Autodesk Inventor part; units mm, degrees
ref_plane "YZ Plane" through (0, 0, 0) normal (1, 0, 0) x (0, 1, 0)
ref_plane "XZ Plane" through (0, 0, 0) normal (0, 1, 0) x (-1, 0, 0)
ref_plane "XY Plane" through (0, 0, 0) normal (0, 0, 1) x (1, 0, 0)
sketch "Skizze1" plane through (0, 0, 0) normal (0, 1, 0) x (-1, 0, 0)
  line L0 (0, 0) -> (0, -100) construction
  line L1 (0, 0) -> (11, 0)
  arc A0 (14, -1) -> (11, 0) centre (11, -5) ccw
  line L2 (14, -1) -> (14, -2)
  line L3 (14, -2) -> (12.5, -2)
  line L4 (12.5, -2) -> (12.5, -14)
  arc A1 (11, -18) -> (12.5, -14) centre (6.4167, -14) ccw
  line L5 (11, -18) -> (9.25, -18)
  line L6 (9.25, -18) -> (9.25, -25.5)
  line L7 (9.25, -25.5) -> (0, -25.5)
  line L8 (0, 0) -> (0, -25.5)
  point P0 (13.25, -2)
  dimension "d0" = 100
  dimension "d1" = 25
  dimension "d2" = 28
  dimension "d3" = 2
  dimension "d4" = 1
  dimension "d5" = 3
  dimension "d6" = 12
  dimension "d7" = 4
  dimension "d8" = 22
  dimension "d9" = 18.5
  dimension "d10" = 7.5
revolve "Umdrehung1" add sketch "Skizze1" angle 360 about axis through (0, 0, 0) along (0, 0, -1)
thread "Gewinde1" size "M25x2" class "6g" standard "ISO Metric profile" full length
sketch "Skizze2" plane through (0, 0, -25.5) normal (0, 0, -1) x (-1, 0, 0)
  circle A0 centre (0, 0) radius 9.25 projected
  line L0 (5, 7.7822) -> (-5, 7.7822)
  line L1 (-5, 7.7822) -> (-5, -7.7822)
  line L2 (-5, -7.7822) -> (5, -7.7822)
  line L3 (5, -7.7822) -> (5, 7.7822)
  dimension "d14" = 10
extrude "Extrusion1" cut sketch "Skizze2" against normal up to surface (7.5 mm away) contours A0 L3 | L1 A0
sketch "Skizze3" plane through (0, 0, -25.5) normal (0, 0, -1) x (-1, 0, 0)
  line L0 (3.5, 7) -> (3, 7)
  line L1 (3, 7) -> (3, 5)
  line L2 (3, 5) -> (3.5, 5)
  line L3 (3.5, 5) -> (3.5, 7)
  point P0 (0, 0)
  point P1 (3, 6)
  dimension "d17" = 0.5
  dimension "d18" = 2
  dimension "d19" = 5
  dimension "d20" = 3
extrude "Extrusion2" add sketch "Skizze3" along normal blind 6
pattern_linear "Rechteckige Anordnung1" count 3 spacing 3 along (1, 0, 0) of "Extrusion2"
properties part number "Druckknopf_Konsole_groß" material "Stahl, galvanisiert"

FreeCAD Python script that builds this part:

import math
import FreeCAD as App
import Part
import Sketcher
from FreeCAD import Vector
Q = App.Units.Quantity


def add_polygon(sketch, points):
    """Adds a closed chain of lines whose ends are joined by coincident constraints."""
    first, n = sketch.GeometryCount, len(points)
    for a, b in zip(points, points[1:] + points[:1]):
        sketch.addGeometry(Part.LineSegment(App.Vector(*a, 0), App.Vector(*b, 0)), False)
    for i in range(n):
        sketch.addConstraint(Sketcher.Constraint("Coincident", first + i, 2, first + (i + 1) % n, 1))

doc = App.newDocument("Part")
body = doc.addObject("PartDesign::Body", "Body")

# Sketch on XZ plane
sketch1 = body.newObject("Sketcher::SketchObject", "Sketch")
sketch1.AttachmentSupport = (doc.getObject("XZ_Plane"), [""])
sketch1.MapMode = "FlatFace"
sketch1.addGeometry([
    Part.LineSegment(Vector(-11, 0, 0), Vector(0, 0, 0)),  # 0
    Part.LineSegment(Vector(0, 0, 0), Vector(0, -25.5, 0)),  # 1
    Part.LineSegment(Vector(0, -25.5, 0), Vector(-9.25, -25.5, 0)),  # 2
    Part.LineSegment(Vector(-9.25, -25.5, 0), Vector(-9.25, -18, 0)),  # 3
    Part.LineSegment(Vector(-9.25, -18, 0), Vector(-11, -18, 0)),  # 4
    Part.ArcOfCircle(Part.Circle(Vector(-6.4167, -14, 0), Vector(0, 0, 1), 6.083308), math.radians(180), math.radians(221.112297)),  # 5
    Part.LineSegment(Vector(-12.5, -14, 0), Vector(-12.5, -2, 0)),  # 6
    Part.LineSegment(Vector(-12.5, -2, 0), Vector(-14, -2, 0)),  # 7
    Part.LineSegment(Vector(-14, -2, 0), Vector(-14, -1, 0)),  # 8
    Part.ArcOfCircle(Part.Circle(Vector(-11, -5, 0), Vector(0, 0, 1), 5), math.radians(90), math.radians(126.869898)),  # 9
], False)
sketch1.addConstraint([
    Sketcher.Constraint("Coincident", 0, 2, 1, 1),
    Sketcher.Constraint("Coincident", 1, 2, 2, 1),
    Sketcher.Constraint("Coincident", 2, 2, 3, 1),
    Sketcher.Constraint("Coincident", 3, 2, 4, 1),
    Sketcher.Constraint("Coincident", 4, 2, 5, 2),
    Sketcher.Constraint("Tangent", 5, 1, 6, 1),
    Sketcher.Constraint("Coincident", 6, 2, 7, 1),
    Sketcher.Constraint("Coincident", 7, 2, 8, 1),
    Sketcher.Constraint("Coincident", 8, 2, 9, 2),
    Sketcher.Constraint("Tangent", 9, 1, 0, 1),
    Sketcher.Constraint("Horizontal", 0),
    Sketcher.Constraint("Vertical", 1),
    Sketcher.Constraint("Horizontal", 2),
    Sketcher.Constraint("Vertical", 3),
    Sketcher.Constraint("Horizontal", 4),
    Sketcher.Constraint("Vertical", 6),
    Sketcher.Constraint("Horizontal", 7),
    Sketcher.Constraint("Vertical", 8),
    Sketcher.Constraint("Coincident", 0, 2, -1, 1),
    Sketcher.Constraint("Vertical", 9, 3, 4, 2),
    Sketcher.Constraint("DistanceY", 6, 1, 6, 2, Q("12 mm")),
    Sketcher.Constraint("DistanceY", 8, 1, 8, 2, Q("1 mm")),
    Sketcher.Constraint("DistanceY", 3, 1, 3, 2, Q("7.5 mm")),
    Sketcher.Constraint("DistanceY", 6, 2, -1, 1, Q("2 mm")),
    Sketcher.Constraint("Radius", 9, Q("5 mm")),
    Sketcher.Constraint("DistanceY", 3, 2, 5, 3, Q("4 mm")),
    Sketcher.Constraint("DistanceX", 0, 1, 0, 2, Q("11 mm")),
    Sketcher.Constraint("DistanceX", 7, 2, 7, 1, Q("1.5 mm")),
    Sketcher.Constraint("DistanceX", 2, 2, 2, 1, Q("9.25 mm")),
])
revolution = body.newObject("PartDesign::Revolution", "Revolution")
revolution.Profile = sketch1
revolution.ReferenceAxis = (sketch1, ["V_Axis"])
revolution.Angle = 360

# Sketch on XY plane
sketch2 = body.newObject("Sketcher::SketchObject", "Sketch001")
sketch2.AttachmentSupport = (doc.getObject("XY_Plane"), [""])
sketch2.MapMode = "FlatFace"
sketch2.AttachmentOffset = App.Placement(Vector(0, 0, -25.5), App.Rotation())
sketch2.addGeometry([
    Part.ArcOfCircle(Part.Circle(Vector(0, 0, 0), Vector(0, 0, 1), 9.25), math.radians(122.720414), math.radians(237.279586)),
    Part.LineSegment(Vector(-5, -7.7822, 0), Vector(-5, 7.7822, 0)),
    Part.LineSegment(Vector(5, -7.7822, 0), Vector(5, 7.7822, 0)),
    Part.ArcOfCircle(Part.Circle(Vector(0, 0, 0), Vector(0, 0, 1), 9.25), math.radians(-57.279586), math.radians(57.279586)),
], False)
sketch2.addConstraint([
    Sketcher.Constraint("Coincident", 0, 1, 1, 2),
    Sketcher.Constraint("Coincident", 1, 1, 0, 2),
    Sketcher.Constraint("Coincident", 2, 1, 3, 1),
    Sketcher.Constraint("Coincident", 3, 2, 2, 2),
    Sketcher.Constraint("Vertical", 1),
    Sketcher.Constraint("Vertical", 2),
    Sketcher.Constraint("Coincident", 0, 3, -1, 1),
    Sketcher.Constraint("Coincident", 3, 3, -1, 1),
    Sketcher.Constraint("Equal", 0, 3),
    Sketcher.Constraint("Horizontal", 1, 1, 2, 1),
    Sketcher.Constraint("DistanceX", 1, 1, 2, 1, Q("10 mm")),
    Sketcher.Constraint("Radius", 0, Q("9.25 mm")),
])
pocket1 = body.newObject("PartDesign::Pocket", "Pocket")
pocket1.Profile = sketch2
pocket1.Length = 7.5
pocket1.Reversed = True

# Sketch on XY plane
sketch3 = body.newObject("Sketcher::SketchObject", "Sketch002")
sketch3.AttachmentSupport = (doc.getObject("XY_Plane"), [""])
sketch3.MapMode = "FlatFace"
sketch3.AttachmentOffset = App.Placement(Vector(0, 0, -25.5), App.Rotation())
add_polygon(sketch3, [(-3.5, 5), (-3.5, 7), (-3, 7), (-3, 5)])  # lines 0-3
sketch3.addConstraint([
    Sketcher.Constraint("Vertical", 0),
    Sketcher.Constraint("Horizontal", 1),
    Sketcher.Constraint("Vertical", 2),
    Sketcher.Constraint("Horizontal", 3),
    Sketcher.Constraint("DistanceY", 0, 1, 0, 2, Q("2 mm")),
    Sketcher.Constraint("DistanceX", 1, 1, 1, 2, Q("0.5 mm")),
    Sketcher.Constraint("DistanceX", 1, 2, -1, 1, Q("3 mm")),
    Sketcher.Constraint("DistanceY", -1, 1, 2, 2, Q("5 mm")),
])
pad1 = body.newObject("PartDesign::Pad", "Pad")
pad1.Profile = sketch3
pad1.Length = 6
pad1.Reversed = True
doc.recompute()

linearpattern = body.newObject("PartDesign::LinearPattern", "LinearPattern")
linearpattern.Originals = [pad1]
linearpattern.Direction = (doc.getObject("X_Axis"), [""])
linearpattern.Mode = "offset"
linearpattern.Offset = 3
linearpattern.Occurrences = 3
body.Tip = linearpattern

doc.recompute()
